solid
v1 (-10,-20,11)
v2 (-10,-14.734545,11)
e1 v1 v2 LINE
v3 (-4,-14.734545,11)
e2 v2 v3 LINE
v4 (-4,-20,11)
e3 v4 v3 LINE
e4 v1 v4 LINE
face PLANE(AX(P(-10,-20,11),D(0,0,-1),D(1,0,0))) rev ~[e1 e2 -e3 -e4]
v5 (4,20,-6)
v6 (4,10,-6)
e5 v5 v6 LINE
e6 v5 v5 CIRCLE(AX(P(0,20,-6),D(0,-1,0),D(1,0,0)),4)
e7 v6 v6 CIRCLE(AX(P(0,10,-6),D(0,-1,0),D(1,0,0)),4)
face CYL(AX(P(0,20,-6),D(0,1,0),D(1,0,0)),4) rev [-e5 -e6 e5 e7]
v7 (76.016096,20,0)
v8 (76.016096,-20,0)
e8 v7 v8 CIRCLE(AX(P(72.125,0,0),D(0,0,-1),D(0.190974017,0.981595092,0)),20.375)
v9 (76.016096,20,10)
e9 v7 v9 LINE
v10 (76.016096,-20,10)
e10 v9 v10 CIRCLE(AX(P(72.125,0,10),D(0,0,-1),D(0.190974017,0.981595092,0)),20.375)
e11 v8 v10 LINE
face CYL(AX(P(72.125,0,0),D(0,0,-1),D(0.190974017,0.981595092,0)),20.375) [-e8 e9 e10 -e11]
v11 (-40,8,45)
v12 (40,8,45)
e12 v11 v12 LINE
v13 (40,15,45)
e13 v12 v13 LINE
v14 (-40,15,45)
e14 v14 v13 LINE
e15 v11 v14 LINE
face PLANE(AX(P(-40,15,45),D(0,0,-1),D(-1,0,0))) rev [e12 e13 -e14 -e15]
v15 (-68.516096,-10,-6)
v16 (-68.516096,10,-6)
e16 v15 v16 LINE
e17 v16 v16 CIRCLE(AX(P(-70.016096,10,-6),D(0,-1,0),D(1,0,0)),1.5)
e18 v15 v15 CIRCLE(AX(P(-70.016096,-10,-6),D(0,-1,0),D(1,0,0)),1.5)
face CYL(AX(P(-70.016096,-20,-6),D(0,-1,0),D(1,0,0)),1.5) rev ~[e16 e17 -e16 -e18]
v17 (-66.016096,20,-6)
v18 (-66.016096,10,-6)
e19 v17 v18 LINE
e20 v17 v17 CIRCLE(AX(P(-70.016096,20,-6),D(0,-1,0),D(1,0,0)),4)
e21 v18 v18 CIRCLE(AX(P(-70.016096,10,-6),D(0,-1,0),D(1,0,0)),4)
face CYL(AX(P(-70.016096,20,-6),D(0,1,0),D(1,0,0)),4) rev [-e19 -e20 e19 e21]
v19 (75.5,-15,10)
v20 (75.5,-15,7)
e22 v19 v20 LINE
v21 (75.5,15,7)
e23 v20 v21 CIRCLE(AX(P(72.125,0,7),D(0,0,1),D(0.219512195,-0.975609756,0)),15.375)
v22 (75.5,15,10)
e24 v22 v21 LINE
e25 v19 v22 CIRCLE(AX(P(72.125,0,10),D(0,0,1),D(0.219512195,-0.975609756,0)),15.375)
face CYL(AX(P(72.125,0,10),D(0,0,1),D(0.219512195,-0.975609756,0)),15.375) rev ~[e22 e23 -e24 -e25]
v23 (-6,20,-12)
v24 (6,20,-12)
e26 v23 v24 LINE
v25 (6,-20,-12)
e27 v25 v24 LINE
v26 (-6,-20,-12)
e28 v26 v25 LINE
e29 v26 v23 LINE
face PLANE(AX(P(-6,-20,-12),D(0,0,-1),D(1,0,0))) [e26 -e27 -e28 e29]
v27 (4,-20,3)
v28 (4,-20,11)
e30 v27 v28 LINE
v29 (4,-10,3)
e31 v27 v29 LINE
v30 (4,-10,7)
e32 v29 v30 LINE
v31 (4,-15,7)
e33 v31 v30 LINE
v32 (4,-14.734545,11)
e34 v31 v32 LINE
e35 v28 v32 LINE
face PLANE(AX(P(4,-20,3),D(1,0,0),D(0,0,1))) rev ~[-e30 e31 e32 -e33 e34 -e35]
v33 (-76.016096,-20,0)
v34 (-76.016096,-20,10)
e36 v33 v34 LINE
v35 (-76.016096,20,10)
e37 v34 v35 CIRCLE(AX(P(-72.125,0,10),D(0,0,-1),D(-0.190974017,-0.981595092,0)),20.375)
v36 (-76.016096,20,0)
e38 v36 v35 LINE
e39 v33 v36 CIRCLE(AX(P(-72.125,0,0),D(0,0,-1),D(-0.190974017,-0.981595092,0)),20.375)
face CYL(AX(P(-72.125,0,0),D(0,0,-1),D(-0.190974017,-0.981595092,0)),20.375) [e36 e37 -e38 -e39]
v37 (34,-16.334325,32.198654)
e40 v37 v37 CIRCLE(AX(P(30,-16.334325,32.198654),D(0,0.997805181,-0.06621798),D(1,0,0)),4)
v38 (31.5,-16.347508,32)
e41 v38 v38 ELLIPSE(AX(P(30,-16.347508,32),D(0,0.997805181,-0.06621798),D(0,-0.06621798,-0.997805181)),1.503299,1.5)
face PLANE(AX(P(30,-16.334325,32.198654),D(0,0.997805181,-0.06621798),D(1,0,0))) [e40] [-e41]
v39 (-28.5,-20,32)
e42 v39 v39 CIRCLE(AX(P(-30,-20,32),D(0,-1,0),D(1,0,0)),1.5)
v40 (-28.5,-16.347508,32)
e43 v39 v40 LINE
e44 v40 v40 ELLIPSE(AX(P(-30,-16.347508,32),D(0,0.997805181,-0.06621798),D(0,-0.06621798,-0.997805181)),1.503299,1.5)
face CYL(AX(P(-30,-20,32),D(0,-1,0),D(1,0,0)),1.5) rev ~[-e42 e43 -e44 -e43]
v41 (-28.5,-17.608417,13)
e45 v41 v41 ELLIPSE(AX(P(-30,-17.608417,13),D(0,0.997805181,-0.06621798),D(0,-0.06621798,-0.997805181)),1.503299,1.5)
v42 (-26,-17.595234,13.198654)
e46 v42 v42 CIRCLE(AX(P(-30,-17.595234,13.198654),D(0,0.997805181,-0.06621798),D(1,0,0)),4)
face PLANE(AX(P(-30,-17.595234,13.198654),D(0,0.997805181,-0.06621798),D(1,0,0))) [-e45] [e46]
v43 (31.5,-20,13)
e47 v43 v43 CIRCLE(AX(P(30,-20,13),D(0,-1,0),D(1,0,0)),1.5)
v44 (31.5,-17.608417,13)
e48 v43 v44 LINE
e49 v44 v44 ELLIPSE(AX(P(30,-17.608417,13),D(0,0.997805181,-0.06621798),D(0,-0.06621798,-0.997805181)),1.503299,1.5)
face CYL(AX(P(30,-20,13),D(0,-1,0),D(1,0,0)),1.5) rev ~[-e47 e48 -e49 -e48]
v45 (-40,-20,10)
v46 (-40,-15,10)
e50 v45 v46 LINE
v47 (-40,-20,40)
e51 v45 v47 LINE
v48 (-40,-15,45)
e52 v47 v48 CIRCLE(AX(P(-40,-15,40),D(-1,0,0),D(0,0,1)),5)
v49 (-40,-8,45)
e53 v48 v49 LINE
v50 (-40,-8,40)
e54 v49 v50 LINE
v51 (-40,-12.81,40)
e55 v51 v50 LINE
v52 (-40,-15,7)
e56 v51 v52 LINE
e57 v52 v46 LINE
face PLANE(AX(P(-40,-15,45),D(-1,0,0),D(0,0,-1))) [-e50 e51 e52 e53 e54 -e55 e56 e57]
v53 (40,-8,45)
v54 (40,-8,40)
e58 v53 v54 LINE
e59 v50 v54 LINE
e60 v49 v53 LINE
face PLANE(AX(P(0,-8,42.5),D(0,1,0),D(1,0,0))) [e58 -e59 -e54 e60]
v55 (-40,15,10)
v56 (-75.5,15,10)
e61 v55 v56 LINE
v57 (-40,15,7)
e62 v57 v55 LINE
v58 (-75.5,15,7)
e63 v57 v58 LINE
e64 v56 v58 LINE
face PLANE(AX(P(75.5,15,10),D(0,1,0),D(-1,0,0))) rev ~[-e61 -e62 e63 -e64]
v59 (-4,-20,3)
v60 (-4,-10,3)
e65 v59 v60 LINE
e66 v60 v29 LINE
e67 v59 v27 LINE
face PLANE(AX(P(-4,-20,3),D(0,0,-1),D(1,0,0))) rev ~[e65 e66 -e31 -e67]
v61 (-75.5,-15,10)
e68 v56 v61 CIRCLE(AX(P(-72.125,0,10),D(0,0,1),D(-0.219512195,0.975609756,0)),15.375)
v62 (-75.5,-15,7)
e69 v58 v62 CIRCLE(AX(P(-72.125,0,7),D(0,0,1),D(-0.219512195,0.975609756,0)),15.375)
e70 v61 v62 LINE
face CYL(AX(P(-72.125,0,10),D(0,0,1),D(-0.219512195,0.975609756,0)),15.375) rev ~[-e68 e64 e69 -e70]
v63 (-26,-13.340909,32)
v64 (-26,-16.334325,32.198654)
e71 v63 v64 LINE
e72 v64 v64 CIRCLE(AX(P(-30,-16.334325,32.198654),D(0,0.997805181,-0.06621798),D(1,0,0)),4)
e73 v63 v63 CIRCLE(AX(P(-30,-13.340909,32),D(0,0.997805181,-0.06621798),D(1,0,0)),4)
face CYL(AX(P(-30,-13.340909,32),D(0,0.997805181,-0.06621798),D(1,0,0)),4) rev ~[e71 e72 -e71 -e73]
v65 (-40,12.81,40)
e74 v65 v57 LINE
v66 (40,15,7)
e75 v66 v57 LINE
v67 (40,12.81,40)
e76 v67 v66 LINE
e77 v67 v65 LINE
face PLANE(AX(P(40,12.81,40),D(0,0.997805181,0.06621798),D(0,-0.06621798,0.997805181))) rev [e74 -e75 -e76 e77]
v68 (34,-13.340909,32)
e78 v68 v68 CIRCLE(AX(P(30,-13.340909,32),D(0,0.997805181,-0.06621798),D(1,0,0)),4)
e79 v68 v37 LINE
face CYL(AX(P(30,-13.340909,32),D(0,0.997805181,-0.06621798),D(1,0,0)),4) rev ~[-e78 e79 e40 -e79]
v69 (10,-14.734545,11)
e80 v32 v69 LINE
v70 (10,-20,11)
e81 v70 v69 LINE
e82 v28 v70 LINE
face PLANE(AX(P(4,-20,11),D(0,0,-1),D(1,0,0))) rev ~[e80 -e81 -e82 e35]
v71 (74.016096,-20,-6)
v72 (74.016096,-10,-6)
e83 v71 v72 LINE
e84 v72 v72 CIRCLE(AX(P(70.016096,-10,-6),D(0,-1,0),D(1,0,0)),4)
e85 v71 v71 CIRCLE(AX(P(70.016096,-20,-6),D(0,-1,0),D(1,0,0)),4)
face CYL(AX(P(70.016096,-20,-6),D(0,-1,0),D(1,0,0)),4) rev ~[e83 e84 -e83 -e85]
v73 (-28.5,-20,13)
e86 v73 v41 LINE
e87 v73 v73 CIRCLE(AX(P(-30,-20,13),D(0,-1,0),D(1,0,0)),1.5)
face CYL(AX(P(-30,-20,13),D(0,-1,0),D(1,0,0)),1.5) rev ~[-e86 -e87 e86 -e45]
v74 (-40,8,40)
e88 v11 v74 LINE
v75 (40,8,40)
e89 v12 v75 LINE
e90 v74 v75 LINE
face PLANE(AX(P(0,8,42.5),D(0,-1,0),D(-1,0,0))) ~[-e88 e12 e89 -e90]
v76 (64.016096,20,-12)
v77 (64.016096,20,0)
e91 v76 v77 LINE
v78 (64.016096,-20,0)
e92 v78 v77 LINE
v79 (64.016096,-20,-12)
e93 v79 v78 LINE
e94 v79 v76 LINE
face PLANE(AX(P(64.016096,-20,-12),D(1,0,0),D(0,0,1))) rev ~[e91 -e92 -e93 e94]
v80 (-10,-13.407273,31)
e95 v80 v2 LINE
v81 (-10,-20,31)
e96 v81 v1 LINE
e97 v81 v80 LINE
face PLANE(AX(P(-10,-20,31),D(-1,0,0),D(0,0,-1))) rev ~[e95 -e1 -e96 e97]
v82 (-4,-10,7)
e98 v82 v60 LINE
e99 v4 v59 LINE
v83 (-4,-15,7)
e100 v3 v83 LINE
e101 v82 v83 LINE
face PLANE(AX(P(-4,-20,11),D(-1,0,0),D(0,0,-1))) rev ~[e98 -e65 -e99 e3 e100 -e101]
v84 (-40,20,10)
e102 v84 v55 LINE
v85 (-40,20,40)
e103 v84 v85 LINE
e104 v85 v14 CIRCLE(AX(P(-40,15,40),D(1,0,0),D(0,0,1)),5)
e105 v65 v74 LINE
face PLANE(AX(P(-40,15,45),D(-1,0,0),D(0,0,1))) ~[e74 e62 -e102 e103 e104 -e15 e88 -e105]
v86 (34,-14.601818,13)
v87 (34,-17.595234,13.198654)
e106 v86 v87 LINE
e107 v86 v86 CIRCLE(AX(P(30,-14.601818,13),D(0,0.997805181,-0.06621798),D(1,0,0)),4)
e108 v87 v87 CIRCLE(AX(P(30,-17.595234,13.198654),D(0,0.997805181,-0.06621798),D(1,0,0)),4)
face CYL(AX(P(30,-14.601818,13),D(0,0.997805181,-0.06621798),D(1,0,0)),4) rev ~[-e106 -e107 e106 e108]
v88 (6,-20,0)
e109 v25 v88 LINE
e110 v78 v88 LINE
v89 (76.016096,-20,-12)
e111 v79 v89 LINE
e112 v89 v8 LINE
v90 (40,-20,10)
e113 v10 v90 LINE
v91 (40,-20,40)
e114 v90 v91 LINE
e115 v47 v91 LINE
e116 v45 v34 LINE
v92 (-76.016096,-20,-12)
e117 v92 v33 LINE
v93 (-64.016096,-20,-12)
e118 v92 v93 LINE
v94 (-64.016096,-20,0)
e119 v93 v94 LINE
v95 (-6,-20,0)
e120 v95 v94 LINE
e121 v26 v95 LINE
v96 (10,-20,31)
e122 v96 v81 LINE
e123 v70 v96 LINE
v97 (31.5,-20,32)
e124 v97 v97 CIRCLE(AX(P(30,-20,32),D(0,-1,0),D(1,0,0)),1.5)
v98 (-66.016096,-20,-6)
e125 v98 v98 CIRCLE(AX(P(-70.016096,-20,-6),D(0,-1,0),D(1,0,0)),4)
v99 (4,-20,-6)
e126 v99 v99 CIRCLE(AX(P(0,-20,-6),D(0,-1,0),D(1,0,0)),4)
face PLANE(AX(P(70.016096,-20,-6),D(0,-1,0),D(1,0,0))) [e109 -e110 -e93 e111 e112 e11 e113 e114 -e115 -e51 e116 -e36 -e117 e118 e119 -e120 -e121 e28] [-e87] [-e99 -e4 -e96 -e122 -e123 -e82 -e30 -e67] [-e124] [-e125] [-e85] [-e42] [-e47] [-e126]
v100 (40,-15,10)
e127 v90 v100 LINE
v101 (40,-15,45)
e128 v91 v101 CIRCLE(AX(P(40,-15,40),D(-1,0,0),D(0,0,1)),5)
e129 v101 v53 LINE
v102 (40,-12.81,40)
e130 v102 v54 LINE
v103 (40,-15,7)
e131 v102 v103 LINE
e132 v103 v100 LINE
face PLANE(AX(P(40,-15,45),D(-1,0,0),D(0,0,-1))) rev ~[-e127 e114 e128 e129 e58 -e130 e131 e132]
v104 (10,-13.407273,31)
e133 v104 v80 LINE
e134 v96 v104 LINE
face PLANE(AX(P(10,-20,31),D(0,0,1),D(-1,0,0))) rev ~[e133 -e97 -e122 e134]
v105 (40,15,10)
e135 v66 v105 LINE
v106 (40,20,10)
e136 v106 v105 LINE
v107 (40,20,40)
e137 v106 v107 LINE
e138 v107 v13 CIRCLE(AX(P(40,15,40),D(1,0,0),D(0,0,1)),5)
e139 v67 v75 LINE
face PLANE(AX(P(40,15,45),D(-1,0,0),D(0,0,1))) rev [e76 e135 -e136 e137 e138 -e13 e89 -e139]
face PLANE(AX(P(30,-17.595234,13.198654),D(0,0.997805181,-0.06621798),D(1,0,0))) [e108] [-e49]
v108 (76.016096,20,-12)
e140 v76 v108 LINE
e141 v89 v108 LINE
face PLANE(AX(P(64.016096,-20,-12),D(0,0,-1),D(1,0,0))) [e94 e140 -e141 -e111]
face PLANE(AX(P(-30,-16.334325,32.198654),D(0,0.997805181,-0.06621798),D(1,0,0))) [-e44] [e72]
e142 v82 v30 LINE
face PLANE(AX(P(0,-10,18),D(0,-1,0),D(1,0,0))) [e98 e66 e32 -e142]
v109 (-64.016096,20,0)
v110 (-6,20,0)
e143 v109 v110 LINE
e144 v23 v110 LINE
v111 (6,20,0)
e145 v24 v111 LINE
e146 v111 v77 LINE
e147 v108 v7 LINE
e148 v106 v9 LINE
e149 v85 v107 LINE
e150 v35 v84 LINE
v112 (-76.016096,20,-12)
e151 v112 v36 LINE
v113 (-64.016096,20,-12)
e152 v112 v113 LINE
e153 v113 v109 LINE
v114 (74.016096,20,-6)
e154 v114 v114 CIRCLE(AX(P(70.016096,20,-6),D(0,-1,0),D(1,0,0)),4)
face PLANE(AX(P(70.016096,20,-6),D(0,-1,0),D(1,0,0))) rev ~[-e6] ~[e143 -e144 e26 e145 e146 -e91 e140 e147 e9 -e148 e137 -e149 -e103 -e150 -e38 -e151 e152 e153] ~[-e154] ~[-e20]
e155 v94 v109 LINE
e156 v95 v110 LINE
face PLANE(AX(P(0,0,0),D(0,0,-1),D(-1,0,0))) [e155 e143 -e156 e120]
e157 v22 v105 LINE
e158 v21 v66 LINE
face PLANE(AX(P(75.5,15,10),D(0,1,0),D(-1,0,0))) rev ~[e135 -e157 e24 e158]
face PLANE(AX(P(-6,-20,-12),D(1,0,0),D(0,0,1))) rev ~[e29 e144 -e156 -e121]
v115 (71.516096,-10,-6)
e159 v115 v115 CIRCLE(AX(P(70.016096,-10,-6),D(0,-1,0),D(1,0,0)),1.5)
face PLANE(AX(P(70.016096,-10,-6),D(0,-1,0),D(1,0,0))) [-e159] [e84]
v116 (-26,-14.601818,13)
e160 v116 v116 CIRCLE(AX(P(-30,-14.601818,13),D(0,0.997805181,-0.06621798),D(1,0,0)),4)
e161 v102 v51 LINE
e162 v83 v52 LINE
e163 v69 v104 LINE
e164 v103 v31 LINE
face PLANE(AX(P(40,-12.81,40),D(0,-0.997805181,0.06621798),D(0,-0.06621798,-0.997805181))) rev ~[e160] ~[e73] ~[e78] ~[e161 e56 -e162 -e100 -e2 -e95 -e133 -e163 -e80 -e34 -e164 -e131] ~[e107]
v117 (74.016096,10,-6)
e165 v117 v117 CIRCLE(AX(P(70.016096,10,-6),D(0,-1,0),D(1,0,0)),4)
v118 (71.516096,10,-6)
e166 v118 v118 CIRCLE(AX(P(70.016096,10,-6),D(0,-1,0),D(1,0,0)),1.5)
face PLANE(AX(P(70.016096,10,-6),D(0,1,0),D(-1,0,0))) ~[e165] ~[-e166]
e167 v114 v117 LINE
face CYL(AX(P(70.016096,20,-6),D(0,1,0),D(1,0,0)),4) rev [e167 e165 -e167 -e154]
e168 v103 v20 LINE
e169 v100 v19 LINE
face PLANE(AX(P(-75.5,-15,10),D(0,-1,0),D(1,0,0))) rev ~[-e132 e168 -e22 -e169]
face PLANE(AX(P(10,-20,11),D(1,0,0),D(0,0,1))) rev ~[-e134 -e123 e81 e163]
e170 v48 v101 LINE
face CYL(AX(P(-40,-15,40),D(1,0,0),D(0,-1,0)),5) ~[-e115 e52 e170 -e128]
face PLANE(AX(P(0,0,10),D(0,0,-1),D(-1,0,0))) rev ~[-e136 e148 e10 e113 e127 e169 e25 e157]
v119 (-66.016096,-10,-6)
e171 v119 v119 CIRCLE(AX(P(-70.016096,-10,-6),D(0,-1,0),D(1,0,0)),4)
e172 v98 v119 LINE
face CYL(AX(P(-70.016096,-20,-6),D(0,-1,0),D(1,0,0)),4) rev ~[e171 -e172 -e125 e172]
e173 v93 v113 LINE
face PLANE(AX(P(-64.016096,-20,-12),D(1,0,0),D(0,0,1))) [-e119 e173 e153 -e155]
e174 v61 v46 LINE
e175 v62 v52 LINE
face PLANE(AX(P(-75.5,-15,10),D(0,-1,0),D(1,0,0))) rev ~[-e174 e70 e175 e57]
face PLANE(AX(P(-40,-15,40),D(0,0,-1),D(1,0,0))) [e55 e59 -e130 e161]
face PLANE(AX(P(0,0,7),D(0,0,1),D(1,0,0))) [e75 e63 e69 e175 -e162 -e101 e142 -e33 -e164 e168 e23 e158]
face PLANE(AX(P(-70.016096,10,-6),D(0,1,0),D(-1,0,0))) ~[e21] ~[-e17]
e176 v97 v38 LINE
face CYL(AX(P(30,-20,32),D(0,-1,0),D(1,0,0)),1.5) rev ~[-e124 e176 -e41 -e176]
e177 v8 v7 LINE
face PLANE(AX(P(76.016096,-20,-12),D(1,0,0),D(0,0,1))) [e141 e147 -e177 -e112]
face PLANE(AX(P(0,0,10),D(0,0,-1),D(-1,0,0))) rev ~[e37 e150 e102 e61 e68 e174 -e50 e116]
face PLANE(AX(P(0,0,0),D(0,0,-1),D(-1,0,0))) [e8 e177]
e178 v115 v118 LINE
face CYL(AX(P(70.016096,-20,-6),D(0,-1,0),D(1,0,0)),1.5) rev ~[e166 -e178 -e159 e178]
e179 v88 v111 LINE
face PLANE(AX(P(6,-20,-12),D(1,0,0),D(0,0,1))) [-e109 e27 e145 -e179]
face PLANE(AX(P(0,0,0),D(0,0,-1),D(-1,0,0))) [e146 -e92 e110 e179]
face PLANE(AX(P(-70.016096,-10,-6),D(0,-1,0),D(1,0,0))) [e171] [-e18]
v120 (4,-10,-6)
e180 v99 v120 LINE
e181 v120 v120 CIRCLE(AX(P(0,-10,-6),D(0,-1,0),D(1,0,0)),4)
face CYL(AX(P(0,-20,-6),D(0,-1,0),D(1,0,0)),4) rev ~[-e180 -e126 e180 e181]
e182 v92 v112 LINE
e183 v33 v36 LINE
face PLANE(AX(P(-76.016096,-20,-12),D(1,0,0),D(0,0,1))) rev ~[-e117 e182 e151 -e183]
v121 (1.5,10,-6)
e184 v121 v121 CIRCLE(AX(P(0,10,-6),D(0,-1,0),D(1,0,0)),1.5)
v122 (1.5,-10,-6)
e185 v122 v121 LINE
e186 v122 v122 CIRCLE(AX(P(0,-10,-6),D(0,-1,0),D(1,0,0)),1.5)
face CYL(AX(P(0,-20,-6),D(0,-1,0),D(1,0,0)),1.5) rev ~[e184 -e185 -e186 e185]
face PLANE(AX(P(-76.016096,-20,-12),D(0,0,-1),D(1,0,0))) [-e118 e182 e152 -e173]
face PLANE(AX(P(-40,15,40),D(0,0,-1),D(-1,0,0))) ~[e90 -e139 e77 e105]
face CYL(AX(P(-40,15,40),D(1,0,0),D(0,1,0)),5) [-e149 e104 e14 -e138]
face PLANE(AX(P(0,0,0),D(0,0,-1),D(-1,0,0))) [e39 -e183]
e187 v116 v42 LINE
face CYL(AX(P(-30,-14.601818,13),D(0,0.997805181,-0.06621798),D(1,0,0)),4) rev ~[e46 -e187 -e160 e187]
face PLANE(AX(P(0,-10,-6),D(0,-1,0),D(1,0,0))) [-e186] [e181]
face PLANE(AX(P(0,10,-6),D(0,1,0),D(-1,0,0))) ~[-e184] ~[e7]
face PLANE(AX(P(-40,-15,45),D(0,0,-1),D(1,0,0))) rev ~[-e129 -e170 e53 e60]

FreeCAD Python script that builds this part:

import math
import FreeCAD as App
import Part
import Sketcher
from FreeCAD import Vector
Q = App.Units.Quantity


def edges_at(feature, points):
    """Names of the edges that pass closest to the given points."""
    edges = feature.Shape.Edges
    near = lambda p: min(range(len(edges)), key=lambda i: edges[i].distToShape(Part.Vertex(*p))[0])
    return sorted({f"Edge{near(p) + 1}" for p in points})

doc = App.newDocument("Part")
params = doc.addObject("Spreadsheet::Sheet", "Params")
for row, (alias, value) in enumerate([
    ("pad1_length", "10 mm"),
    ("sketch2_width", "151 mm"),
    ("pocket1_length", "3 mm"),
    ("sketch3_width", "80 mm"),
    ("sketch3_height", "5 mm"),
    ("pad2_length", "35 mm"),
    ("sketch4_height", "33 mm"),
    ("sketch4_width", "2.19 mm"),
    ("pad3_length", "80 mm"),
    ("sketch5_width", "80 mm"),
    ("sketch5_height", "5 mm"),
    ("pad4_length", "7 mm"),
    ("sketch6_diameter", "3 mm"),
    ("sketch7_diameter", "3 mm"),
    ("sketch8_diameter", "3 mm"),
    ("sketch9_diameter", "3 mm"),
    ("fillet_radius", "5 mm"),
    ("fillet2_radius", "5 mm"),
    ("sketch10_width", "8 mm"),
    ("sketch10_width2", "6 mm"),
    ("pocket6_length", "1 mm"),
    ("pocket6_length2", "10 mm"),
    ("sketch11_diameter", "8 mm"),
    ("pocket7_length", "3 mm"),
    ("sketch12_width", "12 mm"),
    ("pad5_length", "40 mm"),
    ("sketch13_diameter", "3 mm"),
    ("sketch14_diameter", "8 mm"),
    ("pocket9_length", "10 mm"),
], start=1):
    params.set(f"A{row}", alias)
    params.set(f"B{row}", "=" + value)
    params.setAlias(f"B{row}", alias)

body = doc.addObject("PartDesign::Body", "Body")

# Sketch on XY plane
sketch1 = doc.addObject("Sketcher::SketchObject", "Sketch")
body.addObject(sketch1)
sketch1.AttachmentSupport = (doc.XY_Plane, [""])
sketch1.MapMode = "FlatFace"
sketch1.addGeometry(Part.LineSegment(Vector(76, 20, 0), Vector(-76, 20, 0)), False)
sketch1.addGeometry(Part.ArcOfCircle(Part.Circle(Vector(-72, 0, 0), Vector(0, 0, 1), 20), math.radians(101), math.radians(259)), False)
sketch1.addGeometry(Part.LineSegment(Vector(-76, -20, 0), Vector(76, -20, 0)), False)
sketch1.addGeometry(Part.ArcOfCircle(Part.Circle(Vector(72, 0, 0), Vector(0, 0, 1), 20), math.radians(-79), math.radians(79)), False)
sketch1.addConstraint(Sketcher.Constraint("Coincident", 0, 2, 1, 1))
sketch1.addConstraint(Sketcher.Constraint("Coincident", 1, 2, 2, 1))
sketch1.addConstraint(Sketcher.Constraint("Coincident", 2, 2, 3, 1))
sketch1.addConstraint(Sketcher.Constraint("Coincident", 3, 2, 0, 1))
sketch1.addConstraint(Sketcher.Constraint("Horizontal", 0))
sketch1.addConstraint(Sketcher.Constraint("Horizontal", 2))
sketch1.addConstraint(Sketcher.Constraint("Equal", 1, 3))
sketch1.addConstraint(Sketcher.Constraint("Symmetric", 1, 3, 3, 3, -1, 1))
sketch1.addConstraint(Sketcher.Constraint("Symmetric", 0, 2, 1, 2, -1))
sketch1.addConstraint(Sketcher.Constraint("DistanceY", -1, 1, 0, 2, Q("20 mm")))
sketch1.addConstraint(Sketcher.Constraint("Radius", 1, Q("20.375 mm")))
sketch1.addConstraint(Sketcher.Constraint("DistanceX", 1, 3, 3, 3, Q("144.25 mm")))
pad1 = doc.addObject("PartDesign::Pad", "Pad")
body.addObject(pad1)
pad1.Profile = sketch1
pad1.setExpression("Length", "Params.pad1_length")

# Sketch on XY plane
sketch2 = doc.addObject("Sketcher::SketchObject", "Sketch001")
body.addObject(sketch2)
sketch2.AttachmentSupport = (doc.XY_Plane, [""])
sketch2.MapMode = "FlatFace"
sketch2.AttachmentOffset = App.Placement(Vector(0, 0, 10), App.Rotation())
sketch2.addGeometry(Part.LineSegment(Vector(-76, -15, 0), Vector(76, -15, 0)), False)
sketch2.addGeometry(Part.ArcOfCircle(Part.Circle(Vector(72, 0, 0), Vector(0, 0, 1), 15), math.radians(-77), math.radians(77)), False)
sketch2.addGeometry(Part.LineSegment(Vector(76, 15, 0), Vector(-76, 15, 0)), False)
sketch2.addGeometry(Part.ArcOfCircle(Part.Circle(Vector(-72, 0, 0), Vector(0, 0, 1), 15), math.radians(103), math.radians(257)), False)
sketch2.addConstraint(Sketcher.Constraint("Coincident", 0, 2, 1, 1))
sketch2.addConstraint(Sketcher.Constraint("Coincident", 1, 2, 2, 1))
sketch2.addConstraint(Sketcher.Constraint("Coincident", 2, 2, 3, 1))
sketch2.addConstraint(Sketcher.Constraint("Coincident", 3, 2, 0, 1))
sketch2.addConstraint(Sketcher.Constraint("Horizontal", 0))
sketch2.addConstraint(Sketcher.Constraint("Horizontal", 2))
sketch2.addConstraint(Sketcher.Constraint("Equal", 1, 3))
sketch2.addConstraint(Sketcher.Constraint("Symmetric", 1, 3, 3, 3, -1, 1))
sketch2.addConstraint(Sketcher.Constraint("Symmetric", 0, 2, 1, 2, -1))
sketch2.addConstraint(Sketcher.Constraint("DistanceX", 0, 1, 0, 2, Q("151 mm")))
sketch2.addConstraint(Sketcher.Constraint("DistanceY", 0, 2, -1, 1, Q("15 mm")))
sketch2.addConstraint(Sketcher.Constraint("Radius", 1, Q("15.375 mm")))
sketch2.setExpression("Constraints[9]", "Params.sketch2_width")
pocket1 = doc.addObject("PartDesign::Pocket", "Pocket")
body.addObject(pocket1)
pocket1.Profile = sketch2
pocket1.setExpression("Length", "Params.pocket1_length")

# Sketch on XY plane
sketch3 = doc.addObject("Sketcher::SketchObject", "Sketch002")
body.addObject(sketch3)
sketch3.AttachmentSupport = (doc.XY_Plane, [""])
sketch3.MapMode = "FlatFace"
sketch3.AttachmentOffset = App.Placement(Vector(0, 0, 10), App.Rotation())
sketch3.addGeometry(Part.LineSegment(Vector(-40, -15, 0), Vector(-40, -20, 0)), False)
sketch3.addGeometry(Part.LineSegment(Vector(-40, -20, 0), Vector(40, -20, 0)), False)
sketch3.addGeometry(Part.LineSegment(Vector(40, -20, 0), Vector(40, -15, 0)), False)
sketch3.addGeometry(Part.LineSegment(Vector(40, -15, 0), Vector(-40, -15, 0)), False)
sketch3.addConstraint(Sketcher.Constraint("Coincident", 0, 2, 1, 1))
sketch3.addConstraint(Sketcher.Constraint("Coincident", 1, 2, 2, 1))
sketch3.addConstraint(Sketcher.Constraint("Coincident", 2, 2, 3, 1))
sketch3.addConstraint(Sketcher.Constraint("Coincident", 3, 2, 0, 1))
sketch3.addConstraint(Sketcher.Constraint("Vertical", 0))
sketch3.addConstraint(Sketcher.Constraint("Horizontal", 1))
sketch3.addConstraint(Sketcher.Constraint("Vertical", 2))
sketch3.addConstraint(Sketcher.Constraint("Horizontal", 3))
sketch3.addConstraint(Sketcher.Constraint("DistanceX", 1, 1, 1, 2, Q("80 mm")))
sketch3.addConstraint(Sketcher.Constraint("DistanceY", 0, 2, 0, 1, Q("5 mm")))
sketch3.addConstraint(Sketcher.Constraint("DistanceX", 0, 2, -1, 1, Q("40 mm")))
sketch3.addConstraint(Sketcher.Constraint("DistanceY", 0, 2, -1, 1, Q("20 mm")))
sketch3.setExpression("Constraints[8]", "Params.sketch3_width")
sketch3.setExpression("Constraints[9]", "Params.sketch3_height")
pad2 = doc.addObject("PartDesign::Pad", "Pad001")
body.addObject(pad2)
pad2.Profile = sketch3
pad2.setExpression("Length", "Params.pad2_length")

# Sketch on YZ plane
sketch4 = doc.addObject("Sketcher::SketchObject", "Sketch003")
body.addObject(sketch4)
sketch4.AttachmentSupport = (doc.YZ_Plane, [""])
sketch4.MapMode = "FlatFace"
sketch4.AttachmentOffset = App.Placement(Vector(0, 0, 40), App.Rotation())
sketch4.addGeometry(Part.LineSegment(Vector(-12.8, 40, 0), Vector(-15, 40, 0)), False)
sketch4.addGeometry(Part.LineSegment(Vector(-15, 40, 0), Vector(-15, 7, 0)), False)
sketch4.addGeometry(Part.LineSegment(Vector(-15, 7, 0), Vector(-12.8, 40, 0)), False)
sketch4.addConstraint(Sketcher.Constraint("Coincident", 0, 2, 1, 1))
sketch4.addConstraint(Sketcher.Constraint("Coincident", 1, 2, 2, 1))
sketch4.addConstraint(Sketcher.Constraint("Coincident", 2, 2, 0, 1))
sketch4.addConstraint(Sketcher.Constraint("Horizontal", 0))
sketch4.addConstraint(Sketcher.Constraint("Vertical", 1))
sketch4.addConstraint(Sketcher.Constraint("DistanceY", 1, 2, 1, 1, Q("33 mm")))
sketch4.addConstraint(Sketcher.Constraint("DistanceX", 0, 2, -1, 1, Q("15 mm")))
sketch4.addConstraint(Sketcher.Constraint("DistanceY", -1, 1, 0, 2, Q("40 mm")))
sketch4.addConstraint(Sketcher.Constraint("DistanceX", 0, 2, 0, 1, Q("2.19 mm")))
sketch4.setExpression("Constraints[5]", "Params.sketch4_height")
sketch4.setExpression("Constraints[8]", "Params.sketch4_width")
pad3 = doc.addObject("PartDesign::Pad", "Pad002")
body.addObject(pad3)
pad3.Profile = sketch4
pad3.setExpression("Length", "Params.pad3_length")
pad3.Reversed = True

# Sketch on XZ plane
sketch5 = doc.addObject("Sketcher::SketchObject", "Sketch004")
body.addObject(sketch5)
sketch5.AttachmentSupport = (doc.XZ_Plane, [""])
sketch5.MapMode = "FlatFace"
sketch5.AttachmentOffset = App.Placement(Vector(0, 0, 15), App.Rotation())
sketch5.addGeometry(Part.LineSegment(Vector(-40, 40, 0), Vector(-40, 45, 0)), False)
sketch5.addGeometry(Part.LineSegment(Vector(-40, 45, 0), Vector(40, 45, 0)), False)
sketch5.addGeometry(Part.LineSegment(Vector(40, 45, 0), Vector(40, 40, 0)), False)
sketch5.addGeometry(Part.LineSegment(Vector(40, 40, 0), Vector(-40, 40, 0)), False)
sketch5.addConstraint(Sketcher.Constraint("Coincident", 0, 2, 1, 1))
sketch5.addConstraint(Sketcher.Constraint("Coincident", 1, 2, 2, 1))
sketch5.addConstraint(Sketcher.Constraint("Coincident", 2, 2, 3, 1))
sketch5.addConstraint(Sketcher.Constraint("Coincident", 3, 2, 0, 1))
sketch5.addConstraint(Sketcher.Constraint("Vertical", 0))
sketch5.addConstraint(Sketcher.Constraint("Horizontal", 1))
sketch5.addConstraint(Sketcher.Constraint("Vertical", 2))
sketch5.addConstraint(Sketcher.Constraint("Horizontal", 3))
sketch5.addConstraint(Sketcher.Constraint("DistanceX", 1, 1, 1, 2, Q("80 mm")))
sketch5.addConstraint(Sketcher.Constraint("DistanceY", 0, 1, 0, 2, Q("5 mm")))
sketch5.addConstraint(Sketcher.Constraint("DistanceX", 0, 2, -1, 1, Q("40 mm")))
sketch5.addConstraint(Sketcher.Constraint("DistanceY", -1, 1, 0, 2, Q("45 mm")))
sketch5.setExpression("Constraints[8]", "Params.sketch5_width")
sketch5.setExpression("Constraints[9]", "Params.sketch5_height")
pad4 = doc.addObject("PartDesign::Pad", "Pad003")
body.addObject(pad4)
pad4.Profile = sketch5
pad4.setExpression("Length", "Params.pad4_length")
pad4.Reversed = True

# Sketch on XZ plane
sketch6 = doc.addObject("Sketcher::SketchObject", "Sketch005")
body.addObject(sketch6)
sketch6.AttachmentSupport = (doc.XZ_Plane, [""])
sketch6.MapMode = "FlatFace"
sketch6.AttachmentOffset = App.Placement(Vector(0, 0, 20), App.Rotation())
sketch6.addGeometry(Part.Circle(Vector(-30, 13, 0), Vector(0, 0, 1), 1.5), False)
sketch6.addConstraint(Sketcher.Constraint("Diameter", 0, Q("3 mm")))
sketch6.addConstraint(Sketcher.Constraint("DistanceX", 0, 3, -1, 1, Q("30 mm")))
sketch6.addConstraint(Sketcher.Constraint("DistanceY", -1, 1, 0, 3, Q("13 mm")))
sketch6.setExpression("Constraints[0]", "Params.sketch6_diameter")
pocket2 = doc.addObject("PartDesign::Pocket", "Pocket001")
body.addObject(pocket2)
pocket2.Profile = sketch6
pocket2.Type = "UpToFirst"

# Sketch on XZ plane
sketch7 = doc.addObject("Sketcher::SketchObject", "Sketch006")
body.addObject(sketch7)
sketch7.AttachmentSupport = (doc.XZ_Plane, [""])
sketch7.MapMode = "FlatFace"
sketch7.AttachmentOffset = App.Placement(Vector(0, 0, 20), App.Rotation())
sketch7.addGeometry(Part.Circle(Vector(-30, 32, 0), Vector(0, 0, 1), 1.5), False)
sketch7.addConstraint(Sketcher.Constraint("Diameter", 0, Q("3 mm")))
sketch7.addConstraint(Sketcher.Constraint("DistanceX", 0, 3, -1, 1, Q("30 mm")))
sketch7.addConstraint(Sketcher.Constraint("DistanceY", -1, 1, 0, 3, Q("32 mm")))
sketch7.setExpression("Constraints[0]", "Params.sketch7_diameter")
pocket3 = doc.addObject("PartDesign::Pocket", "Pocket002")
body.addObject(pocket3)
pocket3.Profile = sketch7
pocket3.Type = "UpToFirst"

# Sketch on XZ plane
sketch8 = doc.addObject("Sketcher::SketchObject", "Sketch007")
body.addObject(sketch8)
sketch8.AttachmentSupport = (doc.XZ_Plane, [""])
sketch8.MapMode = "FlatFace"
sketch8.AttachmentOffset = App.Placement(Vector(0, 0, 20), App.Rotation())
sketch8.addGeometry(Part.Circle(Vector(30, 13, 0), Vector(0, 0, 1), 1.5), False)
sketch8.addConstraint(Sketcher.Constraint("Diameter", 0, Q("3 mm")))
sketch8.addConstraint(Sketcher.Constraint("DistanceX", -1, 1, 0, 3, Q("30 mm")))
sketch8.addConstraint(Sketcher.Constraint("DistanceY", -1, 1, 0, 3, Q("13 mm")))
sketch8.setExpression("Constraints[0]", "Params.sketch8_diameter")
pocket4 = doc.addObject("PartDesign::Pocket", "Pocket003")
body.addObject(pocket4)
pocket4.Profile = sketch8
pocket4.Type = "UpToFirst"

# Sketch on XZ plane
sketch9 = doc.addObject("Sketcher::SketchObject", "Sketch008")
body.addObject(sketch9)
sketch9.AttachmentSupport = (doc.XZ_Plane, [""])
sketch9.MapMode = "FlatFace"
sketch9.AttachmentOffset = App.Placement(Vector(0, 0, 20), App.Rotation())
sketch9.addGeometry(Part.Circle(Vector(30, 32, 0), Vector(0, 0, 1), 1.5), False)
sketch9.addConstraint(Sketcher.Constraint("Diameter", 0, Q("3 mm")))
sketch9.addConstraint(Sketcher.Constraint("DistanceX", -1, 1, 0, 3, Q("30 mm")))
sketch9.addConstraint(Sketcher.Constraint("DistanceY", -1, 1, 0, 3, Q("32 mm")))
sketch9.setExpression("Constraints[0]", "Params.sketch9_diameter")
pocket5 = doc.addObject("PartDesign::Pocket", "Pocket004")
body.addObject(pocket5)
pocket5.Profile = sketch9
pocket5.Type = "UpToFirst"
doc.recompute()

mirrored = doc.addObject("PartDesign::Mirrored", "Mirrored")
body.addObject(mirrored)
mirrored.Originals = [pad2, pad3, pad4]
mirrored.MirrorPlane = (doc.XZ_Plane, [""])
body.Tip = mirrored
doc.recompute()

fillet = doc.addObject("PartDesign::Fillet", "Fillet")
body.addObject(fillet)
fillet.Base = (mirrored, edges_at(mirrored, [(0, -20, 45)]))
fillet.setExpression("Radius", "Params.fillet_radius")
doc.recompute()

fillet2 = doc.addObject("PartDesign::Fillet", "Fillet001")
body.addObject(fillet2)
fillet2.Base = (fillet, edges_at(fillet, [(0, 20, 45)]))
fillet2.setExpression("Radius", "Params.fillet2_radius")

# Sketch on XZ plane
sketch10 = doc.addObject("Sketcher::SketchObject", "Sketch009")
body.addObject(sketch10)
sketch10.AttachmentSupport = (doc.XZ_Plane, [""])
sketch10.MapMode = "FlatFace"
sketch10.AttachmentOffset = App.Placement(Vector(0, 0, 20), App.Rotation())
sketch10.addGeometry(Part.LineSegment(Vector(-4, 11, 0), Vector(-4, 3, 0)), False)
sketch10.addGeometry(Part.LineSegment(Vector(-4, 3, 0), Vector(4, 3, 0)), False)
sketch10.addGeometry(Part.LineSegment(Vector(4, 3, 0), Vector(4, 11, 0)), False)
sketch10.addGeometry(Part.LineSegment(Vector(4, 11, 0), Vector(10, 11, 0)), False)
sketch10.addGeometry(Part.LineSegment(Vector(10, 11, 0), Vector(10, 31, 0)), False)
sketch10.addGeometry(Part.LineSegment(Vector(10, 31, 0), Vector(-10, 31, 0)), False)
sketch10.addGeometry(Part.LineSegment(Vector(-10, 31, 0), Vector(-10, 11, 0)), False)
sketch10.addGeometry(Part.LineSegment(Vector(-10, 11, 0), Vector(-4, 11, 0)), False)
sketch10.addConstraint(Sketcher.Constraint("Coincident", 0, 2, 1, 1))
sketch10.addConstraint(Sketcher.Constraint("Coincident", 1, 2, 2, 1))
sketch10.addConstraint(Sketcher.Constraint("Coincident", 2, 2, 3, 1))
sketch10.addConstraint(Sketcher.Constraint("Coincident", 3, 2, 4, 1))
sketch10.addConstraint(Sketcher.Constraint("Coincident", 4, 2, 5, 1))
sketch10.addConstraint(Sketcher.Constraint("Coincident", 5, 2, 6, 1))
sketch10.addConstraint(Sketcher.Constraint("Coincident", 6, 2, 7, 1))
sketch10.addConstraint(Sketcher.Constraint("Coincident", 7, 2, 0, 1))
sketch10.addConstraint(Sketcher.Constraint("Vertical", 0))
sketch10.addConstraint(Sketcher.Constraint("Horizontal", 1))
sketch10.addConstraint(Sketcher.Constraint("Vertical", 2))
sketch10.addConstraint(Sketcher.Constraint("Horizontal", 3))
sketch10.addConstraint(Sketcher.Constraint("Vertical", 4))
sketch10.addConstraint(Sketcher.Constraint("Horizontal", 5))
sketch10.addConstraint(Sketcher.Constraint("Vertical", 6))
sketch10.addConstraint(Sketcher.Constraint("Horizontal", 7))
sketch10.addConstraint(Sketcher.Constraint("Symmetric", 3, 2, 6, 2, -2))
sketch10.addConstraint(Sketcher.Constraint("Equal", 3, 7))
sketch10.addConstraint(Sketcher.Constraint("Equal", 1, 0))
sketch10.addConstraint(Sketcher.Constraint("Equal", 5, 4))
sketch10.addConstraint(Sketcher.Constraint("DistanceX", 1, 1, 1, 2, Q("8 mm")))
sketch10.addConstraint(Sketcher.Constraint("DistanceX", 3, 1, 3, 2, Q("6 mm")))
sketch10.addConstraint(Sketcher.Constraint("DistanceY", -1, 1, 0, 2, Q("3 mm")))
sketch10.setExpression("Constraints[20]", "Params.sketch10_width")
sketch10.setExpression("Constraints[21]", "Params.sketch10_width2")
pocket6 = doc.addObject("PartDesign::Pocket", "Pocket005")
body.addObject(pocket6)
pocket6.Profile = sketch10
pocket6.Type = "TwoLengths"
pocket6.setExpression("Length", "Params.pocket6_length")
pocket6.setExpression("Length2", "Params.pocket6_length2")
pocket6.Reversed = True

# Sketch on an angled plane
sketch11 = doc.addObject("Sketcher::SketchObject", "Sketch010")
body.addObject(sketch11)
sketch11.Placement = App.Placement(Vector(0, -15.396736, 1.021783), App.Rotation(Vector(1, 0, 0), Vector(0, -0.06621798, -0.997805181), Vector(0, 0.997805181, -0.06621798), "ZXY"))
sketch11.addGeometry(Part.Circle(Vector(-30, -12, 0), Vector(0, 0, 1), 4), False)
sketch11.addGeometry(Part.Circle(Vector(-30, -31, 0), Vector(0, 0, 1), 4), False)
sketch11.addGeometry(Part.Circle(Vector(30, -31, 0), Vector(0, 0, 1), 4), False)
sketch11.addGeometry(Part.Circle(Vector(30, -12, 0), Vector(0, 0, 1), 4), False)
sketch11.addConstraint(Sketcher.Constraint("Equal", 0, 1))
sketch11.addConstraint(Sketcher.Constraint("Equal", 1, 2))
sketch11.addConstraint(Sketcher.Constraint("Equal", 2, 3))
sketch11.addConstraint(Sketcher.Constraint("Symmetric", 1, 3, 2, 3, -2))
sketch11.addConstraint(Sketcher.Constraint("Symmetric", 0, 3, 3, 3, -2))
sketch11.addConstraint(Sketcher.Constraint("Vertical", 0, 3, 1, 3))
sketch11.addConstraint(Sketcher.Constraint("Diameter", 0, Q("8 mm")))
sketch11.addConstraint(Sketcher.Constraint("DistanceX", 0, 3, -1, 1, Q("30 mm")))
sketch11.addConstraint(Sketcher.Constraint("DistanceY", 0, 3, -1, 1, Q("12.004564 mm")))
sketch11.addConstraint(Sketcher.Constraint("DistanceY", 1, 3, -1, 1, Q("31.046358 mm")))
sketch11.setExpression("Constraints[6]", "Params.sketch11_diameter")
pocket7 = doc.addObject("PartDesign::Pocket", "Pocket006")
body.addObject(pocket7)
pocket7.Profile = sketch11
pocket7.setExpression("Length", "Params.pocket7_length")

# Sketch on XZ plane
sketch12 = doc.addObject("Sketcher::SketchObject", "Sketch011")
body.addObject(sketch12)
sketch12.AttachmentSupport = (doc.XZ_Plane, [""])
sketch12.MapMode = "FlatFace"
sketch12.AttachmentOffset = App.Placement(Vector(0, 0, 20), App.Rotation())
sketch12.addGeometry(Part.LineSegment(Vector(64, 0, 0), Vector(64, -12, 0)), False)
sketch12.addGeometry(Part.LineSegment(Vector(64, -12, 0), Vector(76, -12, 0)), False)
sketch12.addGeometry(Part.LineSegment(Vector(76, -12, 0), Vector(76, 0, 0)), False)
sketch12.addGeometry(Part.LineSegment(Vector(76, 0, 0), Vector(64, 0, 0)), False)
sketch12.addGeometry(Part.LineSegment(Vector(-76, 0, 0), Vector(-76, -12, 0)), False)
sketch12.addGeometry(Part.LineSegment(Vector(-76, -12, 0), Vector(-64, -12, 0)), False)
sketch12.addGeometry(Part.LineSegment(Vector(-64, -12, 0), Vector(-64, 0, 0)), False)
sketch12.addGeometry(Part.LineSegment(Vector(-64, 0, 0), Vector(-76, 0, 0)), False)
sketch12.addGeometry(Part.LineSegment(Vector(-6, 0, 0), Vector(-6, -12, 0)), False)
sketch12.addGeometry(Part.LineSegment(Vector(-6, -12, 0), Vector(6, -12, 0)), False)
sketch12.addGeometry(Part.LineSegment(Vector(6, -12, 0), Vector(6, 0, 0)), False)
sketch12.addGeometry(Part.LineSegment(Vector(6, 0, 0), Vector(-6, 0, 0)), False)
sketch12.addConstraint(Sketcher.Constraint("Coincident", 0, 2, 1, 1))
sketch12.addConstraint(Sketcher.Constraint("Coincident", 1, 2, 2, 1))
sketch12.addConstraint(Sketcher.Constraint("Coincident", 2, 2, 3, 1))
sketch12.addConstraint(Sketcher.Constraint("Coincident", 3, 2, 0, 1))
sketch12.addConstraint(Sketcher.Constraint("Coincident", 4, 2, 5, 1))
sketch12.addConstraint(Sketcher.Constraint("Coincident", 5, 2, 6, 1))
sketch12.addConstraint(Sketcher.Constraint("Coincident", 6, 2, 7, 1))
sketch12.addConstraint(Sketcher.Constraint("Coincident", 7, 2, 4, 1))
sketch12.addConstraint(Sketcher.Constraint("Coincident", 8, 2, 9, 1))
sketch12.addConstraint(Sketcher.Constraint("Coincident", 9, 2, 10, 1))
sketch12.addConstraint(Sketcher.Constraint("Coincident", 10, 2, 11, 1))
sketch12.addConstraint(Sketcher.Constraint("Coincident", 11, 2, 8, 1))
sketch12.addConstraint(Sketcher.Constraint("Vertical", 0))
sketch12.addConstraint(Sketcher.Constraint("Horizontal", 1))
sketch12.addConstraint(Sketcher.Constraint("Vertical", 2))
sketch12.addConstraint(Sketcher.Constraint("Horizontal", 3))
sketch12.addConstraint(Sketcher.Constraint("Vertical", 4))
sketch12.addConstraint(Sketcher.Constraint("Horizontal", 5))
sketch12.addConstraint(Sketcher.Constraint("Vertical", 6))
sketch12.addConstraint(Sketcher.Constraint("Horizontal", 7))
sketch12.addConstraint(Sketcher.Constraint("Vertical", 8))
sketch12.addConstraint(Sketcher.Constraint("Horizontal", 9))
sketch12.addConstraint(Sketcher.Constraint("Vertical", 10))
sketch12.addConstraint(Sketcher.Constraint("Horizontal", 11))
sketch12.addConstraint(Sketcher.Constraint("Symmetric", 3, 2, 6, 2, -1, 1))
sketch12.addConstraint(Sketcher.Constraint("Symmetric", 10, 2, 11, 2, -1, 1))
sketch12.addConstraint(Sketcher.Constraint("Symmetric", 1, 2, 4, 2, -2))
sketch12.addConstraint(Sketcher.Constraint("PointOnObject", 2, 2, -1))
sketch12.addConstraint(Sketcher.Constraint("Horizontal", 5, 2, 8, 2))
sketch12.addConstraint(Sketcher.Constraint("Equal", 7, 9))
sketch12.addConstraint(Sketcher.Constraint("Equal", 11, 0))
sketch12.addConstraint(Sketcher.Constraint("DistanceX", 1, 1, 1, 2, Q("12 mm")))
sketch12.addConstraint(Sketcher.Constraint("DistanceX", 4, 2, 0, 2, Q("140.032191 mm")))
sketch12.setExpression("Constraints[31]", "Params.sketch12_width")
pad5 = doc.addObject("PartDesign::Pad", "Pad004")
body.addObject(pad5)
pad5.Profile = sketch12
pad5.setExpression("Length", "Params.pad5_length")
pad5.Reversed = True

# Sketch on XZ plane
sketch13 = doc.addObject("Sketcher::SketchObject", "Sketch012")
body.addObject(sketch13)
sketch13.AttachmentSupport = (doc.XZ_Plane, [""])
sketch13.MapMode = "FlatFace"
sketch13.AttachmentOffset = App.Placement(Vector(0, 0, 20), App.Rotation())
sketch13.addGeometry(Part.Circle(Vector(-70, -6, 0), Vector(0, 0, 1), 1.5), False)
sketch13.addGeometry(Part.Circle(Vector(0, -6, 0), Vector(0, 0, 1), 1.5), False)
sketch13.addGeometry(Part.Circle(Vector(70, -6, 0), Vector(0, 0, 1), 1.5), False)
sketch13.addConstraint(Sketcher.Constraint("Equal", 0, 1))
sketch13.addConstraint(Sketcher.Constraint("Equal", 1, 2))
sketch13.addConstraint(Sketcher.Constraint("Symmetric", 0, 3, 2, 3, -2))
sketch13.addConstraint(Sketcher.Constraint("PointOnObject", 1, 3, -2))
sketch13.addConstraint(Sketcher.Constraint("Horizontal", 0, 3, 1, 3))
sketch13.addConstraint(Sketcher.Constraint("Diameter", 0, Q("3 mm")))
sketch13.addConstraint(Sketcher.Constraint("DistanceY", 0, 3, -1, 1, Q("6 mm")))
sketch13.addConstraint(Sketcher.Constraint("DistanceX", 0, 3, 2, 3, Q("140.032191 mm")))
sketch13.setExpression("Constraints[5]", "Params.sketch13_diameter")
pocket8 = doc.addObject("PartDesign::Pocket", "Pocket007")
body.addObject(pocket8)
pocket8.Profile = sketch13
pocket8.Type = "ThroughAll"

# Sketch on XZ plane
sketch14 = doc.addObject("Sketcher::SketchObject", "Sketch013")
body.addObject(sketch14)
sketch14.AttachmentSupport = (doc.XZ_Plane, [""])
sketch14.MapMode = "FlatFace"
sketch14.AttachmentOffset = App.Placement(Vector(0, 0, 20), App.Rotation())
sketch14.addGeometry(Part.Circle(Vector(-70, -6, 0), Vector(0, 0, 1), 4), False)
sketch14.addGeometry(Part.Circle(Vector(0, -6, 0), Vector(0, 0, 1), 4), False)
sketch14.addGeometry(Part.Circle(Vector(70, -6, 0), Vector(0, 0, 1), 4), False)
sketch14.addConstraint(Sketcher.Constraint("Equal", 0, 1))
sketch14.addConstraint(Sketcher.Constraint("Equal", 1, 2))
sketch14.addConstraint(Sketcher.Constraint("Symmetric", 0, 3, 2, 3, -2))
sketch14.addConstraint(Sketcher.Constraint("PointOnObject", 1, 3, -2))
sketch14.addConstraint(Sketcher.Constraint("Horizontal", 0, 3, 1, 3))
sketch14.addConstraint(Sketcher.Constraint("Diameter", 0, Q("8 mm")))
sketch14.addConstraint(Sketcher.Constraint("DistanceY", 0, 3, -1, 1, Q("6 mm")))
sketch14.addConstraint(Sketcher.Constraint("DistanceX", 0, 3, 2, 3, Q("140.032191 mm")))
sketch14.setExpression("Constraints[5]", "Params.sketch14_diameter")
pocket9 = doc.addObject("PartDesign::Pocket", "Pocket008")
body.addObject(pocket9)
pocket9.Profile = sketch14
pocket9.setExpression("Length", "Params.pocket9_length")
doc.recompute()

mirrored2 = doc.addObject("PartDesign::Mirrored", "Mirrored001")
body.addObject(mirrored2)
mirrored2.Originals = [pocket9]
mirrored2.MirrorPlane = (doc.XZ_Plane, [""])
body.Tip = mirrored2

doc.recompute()
